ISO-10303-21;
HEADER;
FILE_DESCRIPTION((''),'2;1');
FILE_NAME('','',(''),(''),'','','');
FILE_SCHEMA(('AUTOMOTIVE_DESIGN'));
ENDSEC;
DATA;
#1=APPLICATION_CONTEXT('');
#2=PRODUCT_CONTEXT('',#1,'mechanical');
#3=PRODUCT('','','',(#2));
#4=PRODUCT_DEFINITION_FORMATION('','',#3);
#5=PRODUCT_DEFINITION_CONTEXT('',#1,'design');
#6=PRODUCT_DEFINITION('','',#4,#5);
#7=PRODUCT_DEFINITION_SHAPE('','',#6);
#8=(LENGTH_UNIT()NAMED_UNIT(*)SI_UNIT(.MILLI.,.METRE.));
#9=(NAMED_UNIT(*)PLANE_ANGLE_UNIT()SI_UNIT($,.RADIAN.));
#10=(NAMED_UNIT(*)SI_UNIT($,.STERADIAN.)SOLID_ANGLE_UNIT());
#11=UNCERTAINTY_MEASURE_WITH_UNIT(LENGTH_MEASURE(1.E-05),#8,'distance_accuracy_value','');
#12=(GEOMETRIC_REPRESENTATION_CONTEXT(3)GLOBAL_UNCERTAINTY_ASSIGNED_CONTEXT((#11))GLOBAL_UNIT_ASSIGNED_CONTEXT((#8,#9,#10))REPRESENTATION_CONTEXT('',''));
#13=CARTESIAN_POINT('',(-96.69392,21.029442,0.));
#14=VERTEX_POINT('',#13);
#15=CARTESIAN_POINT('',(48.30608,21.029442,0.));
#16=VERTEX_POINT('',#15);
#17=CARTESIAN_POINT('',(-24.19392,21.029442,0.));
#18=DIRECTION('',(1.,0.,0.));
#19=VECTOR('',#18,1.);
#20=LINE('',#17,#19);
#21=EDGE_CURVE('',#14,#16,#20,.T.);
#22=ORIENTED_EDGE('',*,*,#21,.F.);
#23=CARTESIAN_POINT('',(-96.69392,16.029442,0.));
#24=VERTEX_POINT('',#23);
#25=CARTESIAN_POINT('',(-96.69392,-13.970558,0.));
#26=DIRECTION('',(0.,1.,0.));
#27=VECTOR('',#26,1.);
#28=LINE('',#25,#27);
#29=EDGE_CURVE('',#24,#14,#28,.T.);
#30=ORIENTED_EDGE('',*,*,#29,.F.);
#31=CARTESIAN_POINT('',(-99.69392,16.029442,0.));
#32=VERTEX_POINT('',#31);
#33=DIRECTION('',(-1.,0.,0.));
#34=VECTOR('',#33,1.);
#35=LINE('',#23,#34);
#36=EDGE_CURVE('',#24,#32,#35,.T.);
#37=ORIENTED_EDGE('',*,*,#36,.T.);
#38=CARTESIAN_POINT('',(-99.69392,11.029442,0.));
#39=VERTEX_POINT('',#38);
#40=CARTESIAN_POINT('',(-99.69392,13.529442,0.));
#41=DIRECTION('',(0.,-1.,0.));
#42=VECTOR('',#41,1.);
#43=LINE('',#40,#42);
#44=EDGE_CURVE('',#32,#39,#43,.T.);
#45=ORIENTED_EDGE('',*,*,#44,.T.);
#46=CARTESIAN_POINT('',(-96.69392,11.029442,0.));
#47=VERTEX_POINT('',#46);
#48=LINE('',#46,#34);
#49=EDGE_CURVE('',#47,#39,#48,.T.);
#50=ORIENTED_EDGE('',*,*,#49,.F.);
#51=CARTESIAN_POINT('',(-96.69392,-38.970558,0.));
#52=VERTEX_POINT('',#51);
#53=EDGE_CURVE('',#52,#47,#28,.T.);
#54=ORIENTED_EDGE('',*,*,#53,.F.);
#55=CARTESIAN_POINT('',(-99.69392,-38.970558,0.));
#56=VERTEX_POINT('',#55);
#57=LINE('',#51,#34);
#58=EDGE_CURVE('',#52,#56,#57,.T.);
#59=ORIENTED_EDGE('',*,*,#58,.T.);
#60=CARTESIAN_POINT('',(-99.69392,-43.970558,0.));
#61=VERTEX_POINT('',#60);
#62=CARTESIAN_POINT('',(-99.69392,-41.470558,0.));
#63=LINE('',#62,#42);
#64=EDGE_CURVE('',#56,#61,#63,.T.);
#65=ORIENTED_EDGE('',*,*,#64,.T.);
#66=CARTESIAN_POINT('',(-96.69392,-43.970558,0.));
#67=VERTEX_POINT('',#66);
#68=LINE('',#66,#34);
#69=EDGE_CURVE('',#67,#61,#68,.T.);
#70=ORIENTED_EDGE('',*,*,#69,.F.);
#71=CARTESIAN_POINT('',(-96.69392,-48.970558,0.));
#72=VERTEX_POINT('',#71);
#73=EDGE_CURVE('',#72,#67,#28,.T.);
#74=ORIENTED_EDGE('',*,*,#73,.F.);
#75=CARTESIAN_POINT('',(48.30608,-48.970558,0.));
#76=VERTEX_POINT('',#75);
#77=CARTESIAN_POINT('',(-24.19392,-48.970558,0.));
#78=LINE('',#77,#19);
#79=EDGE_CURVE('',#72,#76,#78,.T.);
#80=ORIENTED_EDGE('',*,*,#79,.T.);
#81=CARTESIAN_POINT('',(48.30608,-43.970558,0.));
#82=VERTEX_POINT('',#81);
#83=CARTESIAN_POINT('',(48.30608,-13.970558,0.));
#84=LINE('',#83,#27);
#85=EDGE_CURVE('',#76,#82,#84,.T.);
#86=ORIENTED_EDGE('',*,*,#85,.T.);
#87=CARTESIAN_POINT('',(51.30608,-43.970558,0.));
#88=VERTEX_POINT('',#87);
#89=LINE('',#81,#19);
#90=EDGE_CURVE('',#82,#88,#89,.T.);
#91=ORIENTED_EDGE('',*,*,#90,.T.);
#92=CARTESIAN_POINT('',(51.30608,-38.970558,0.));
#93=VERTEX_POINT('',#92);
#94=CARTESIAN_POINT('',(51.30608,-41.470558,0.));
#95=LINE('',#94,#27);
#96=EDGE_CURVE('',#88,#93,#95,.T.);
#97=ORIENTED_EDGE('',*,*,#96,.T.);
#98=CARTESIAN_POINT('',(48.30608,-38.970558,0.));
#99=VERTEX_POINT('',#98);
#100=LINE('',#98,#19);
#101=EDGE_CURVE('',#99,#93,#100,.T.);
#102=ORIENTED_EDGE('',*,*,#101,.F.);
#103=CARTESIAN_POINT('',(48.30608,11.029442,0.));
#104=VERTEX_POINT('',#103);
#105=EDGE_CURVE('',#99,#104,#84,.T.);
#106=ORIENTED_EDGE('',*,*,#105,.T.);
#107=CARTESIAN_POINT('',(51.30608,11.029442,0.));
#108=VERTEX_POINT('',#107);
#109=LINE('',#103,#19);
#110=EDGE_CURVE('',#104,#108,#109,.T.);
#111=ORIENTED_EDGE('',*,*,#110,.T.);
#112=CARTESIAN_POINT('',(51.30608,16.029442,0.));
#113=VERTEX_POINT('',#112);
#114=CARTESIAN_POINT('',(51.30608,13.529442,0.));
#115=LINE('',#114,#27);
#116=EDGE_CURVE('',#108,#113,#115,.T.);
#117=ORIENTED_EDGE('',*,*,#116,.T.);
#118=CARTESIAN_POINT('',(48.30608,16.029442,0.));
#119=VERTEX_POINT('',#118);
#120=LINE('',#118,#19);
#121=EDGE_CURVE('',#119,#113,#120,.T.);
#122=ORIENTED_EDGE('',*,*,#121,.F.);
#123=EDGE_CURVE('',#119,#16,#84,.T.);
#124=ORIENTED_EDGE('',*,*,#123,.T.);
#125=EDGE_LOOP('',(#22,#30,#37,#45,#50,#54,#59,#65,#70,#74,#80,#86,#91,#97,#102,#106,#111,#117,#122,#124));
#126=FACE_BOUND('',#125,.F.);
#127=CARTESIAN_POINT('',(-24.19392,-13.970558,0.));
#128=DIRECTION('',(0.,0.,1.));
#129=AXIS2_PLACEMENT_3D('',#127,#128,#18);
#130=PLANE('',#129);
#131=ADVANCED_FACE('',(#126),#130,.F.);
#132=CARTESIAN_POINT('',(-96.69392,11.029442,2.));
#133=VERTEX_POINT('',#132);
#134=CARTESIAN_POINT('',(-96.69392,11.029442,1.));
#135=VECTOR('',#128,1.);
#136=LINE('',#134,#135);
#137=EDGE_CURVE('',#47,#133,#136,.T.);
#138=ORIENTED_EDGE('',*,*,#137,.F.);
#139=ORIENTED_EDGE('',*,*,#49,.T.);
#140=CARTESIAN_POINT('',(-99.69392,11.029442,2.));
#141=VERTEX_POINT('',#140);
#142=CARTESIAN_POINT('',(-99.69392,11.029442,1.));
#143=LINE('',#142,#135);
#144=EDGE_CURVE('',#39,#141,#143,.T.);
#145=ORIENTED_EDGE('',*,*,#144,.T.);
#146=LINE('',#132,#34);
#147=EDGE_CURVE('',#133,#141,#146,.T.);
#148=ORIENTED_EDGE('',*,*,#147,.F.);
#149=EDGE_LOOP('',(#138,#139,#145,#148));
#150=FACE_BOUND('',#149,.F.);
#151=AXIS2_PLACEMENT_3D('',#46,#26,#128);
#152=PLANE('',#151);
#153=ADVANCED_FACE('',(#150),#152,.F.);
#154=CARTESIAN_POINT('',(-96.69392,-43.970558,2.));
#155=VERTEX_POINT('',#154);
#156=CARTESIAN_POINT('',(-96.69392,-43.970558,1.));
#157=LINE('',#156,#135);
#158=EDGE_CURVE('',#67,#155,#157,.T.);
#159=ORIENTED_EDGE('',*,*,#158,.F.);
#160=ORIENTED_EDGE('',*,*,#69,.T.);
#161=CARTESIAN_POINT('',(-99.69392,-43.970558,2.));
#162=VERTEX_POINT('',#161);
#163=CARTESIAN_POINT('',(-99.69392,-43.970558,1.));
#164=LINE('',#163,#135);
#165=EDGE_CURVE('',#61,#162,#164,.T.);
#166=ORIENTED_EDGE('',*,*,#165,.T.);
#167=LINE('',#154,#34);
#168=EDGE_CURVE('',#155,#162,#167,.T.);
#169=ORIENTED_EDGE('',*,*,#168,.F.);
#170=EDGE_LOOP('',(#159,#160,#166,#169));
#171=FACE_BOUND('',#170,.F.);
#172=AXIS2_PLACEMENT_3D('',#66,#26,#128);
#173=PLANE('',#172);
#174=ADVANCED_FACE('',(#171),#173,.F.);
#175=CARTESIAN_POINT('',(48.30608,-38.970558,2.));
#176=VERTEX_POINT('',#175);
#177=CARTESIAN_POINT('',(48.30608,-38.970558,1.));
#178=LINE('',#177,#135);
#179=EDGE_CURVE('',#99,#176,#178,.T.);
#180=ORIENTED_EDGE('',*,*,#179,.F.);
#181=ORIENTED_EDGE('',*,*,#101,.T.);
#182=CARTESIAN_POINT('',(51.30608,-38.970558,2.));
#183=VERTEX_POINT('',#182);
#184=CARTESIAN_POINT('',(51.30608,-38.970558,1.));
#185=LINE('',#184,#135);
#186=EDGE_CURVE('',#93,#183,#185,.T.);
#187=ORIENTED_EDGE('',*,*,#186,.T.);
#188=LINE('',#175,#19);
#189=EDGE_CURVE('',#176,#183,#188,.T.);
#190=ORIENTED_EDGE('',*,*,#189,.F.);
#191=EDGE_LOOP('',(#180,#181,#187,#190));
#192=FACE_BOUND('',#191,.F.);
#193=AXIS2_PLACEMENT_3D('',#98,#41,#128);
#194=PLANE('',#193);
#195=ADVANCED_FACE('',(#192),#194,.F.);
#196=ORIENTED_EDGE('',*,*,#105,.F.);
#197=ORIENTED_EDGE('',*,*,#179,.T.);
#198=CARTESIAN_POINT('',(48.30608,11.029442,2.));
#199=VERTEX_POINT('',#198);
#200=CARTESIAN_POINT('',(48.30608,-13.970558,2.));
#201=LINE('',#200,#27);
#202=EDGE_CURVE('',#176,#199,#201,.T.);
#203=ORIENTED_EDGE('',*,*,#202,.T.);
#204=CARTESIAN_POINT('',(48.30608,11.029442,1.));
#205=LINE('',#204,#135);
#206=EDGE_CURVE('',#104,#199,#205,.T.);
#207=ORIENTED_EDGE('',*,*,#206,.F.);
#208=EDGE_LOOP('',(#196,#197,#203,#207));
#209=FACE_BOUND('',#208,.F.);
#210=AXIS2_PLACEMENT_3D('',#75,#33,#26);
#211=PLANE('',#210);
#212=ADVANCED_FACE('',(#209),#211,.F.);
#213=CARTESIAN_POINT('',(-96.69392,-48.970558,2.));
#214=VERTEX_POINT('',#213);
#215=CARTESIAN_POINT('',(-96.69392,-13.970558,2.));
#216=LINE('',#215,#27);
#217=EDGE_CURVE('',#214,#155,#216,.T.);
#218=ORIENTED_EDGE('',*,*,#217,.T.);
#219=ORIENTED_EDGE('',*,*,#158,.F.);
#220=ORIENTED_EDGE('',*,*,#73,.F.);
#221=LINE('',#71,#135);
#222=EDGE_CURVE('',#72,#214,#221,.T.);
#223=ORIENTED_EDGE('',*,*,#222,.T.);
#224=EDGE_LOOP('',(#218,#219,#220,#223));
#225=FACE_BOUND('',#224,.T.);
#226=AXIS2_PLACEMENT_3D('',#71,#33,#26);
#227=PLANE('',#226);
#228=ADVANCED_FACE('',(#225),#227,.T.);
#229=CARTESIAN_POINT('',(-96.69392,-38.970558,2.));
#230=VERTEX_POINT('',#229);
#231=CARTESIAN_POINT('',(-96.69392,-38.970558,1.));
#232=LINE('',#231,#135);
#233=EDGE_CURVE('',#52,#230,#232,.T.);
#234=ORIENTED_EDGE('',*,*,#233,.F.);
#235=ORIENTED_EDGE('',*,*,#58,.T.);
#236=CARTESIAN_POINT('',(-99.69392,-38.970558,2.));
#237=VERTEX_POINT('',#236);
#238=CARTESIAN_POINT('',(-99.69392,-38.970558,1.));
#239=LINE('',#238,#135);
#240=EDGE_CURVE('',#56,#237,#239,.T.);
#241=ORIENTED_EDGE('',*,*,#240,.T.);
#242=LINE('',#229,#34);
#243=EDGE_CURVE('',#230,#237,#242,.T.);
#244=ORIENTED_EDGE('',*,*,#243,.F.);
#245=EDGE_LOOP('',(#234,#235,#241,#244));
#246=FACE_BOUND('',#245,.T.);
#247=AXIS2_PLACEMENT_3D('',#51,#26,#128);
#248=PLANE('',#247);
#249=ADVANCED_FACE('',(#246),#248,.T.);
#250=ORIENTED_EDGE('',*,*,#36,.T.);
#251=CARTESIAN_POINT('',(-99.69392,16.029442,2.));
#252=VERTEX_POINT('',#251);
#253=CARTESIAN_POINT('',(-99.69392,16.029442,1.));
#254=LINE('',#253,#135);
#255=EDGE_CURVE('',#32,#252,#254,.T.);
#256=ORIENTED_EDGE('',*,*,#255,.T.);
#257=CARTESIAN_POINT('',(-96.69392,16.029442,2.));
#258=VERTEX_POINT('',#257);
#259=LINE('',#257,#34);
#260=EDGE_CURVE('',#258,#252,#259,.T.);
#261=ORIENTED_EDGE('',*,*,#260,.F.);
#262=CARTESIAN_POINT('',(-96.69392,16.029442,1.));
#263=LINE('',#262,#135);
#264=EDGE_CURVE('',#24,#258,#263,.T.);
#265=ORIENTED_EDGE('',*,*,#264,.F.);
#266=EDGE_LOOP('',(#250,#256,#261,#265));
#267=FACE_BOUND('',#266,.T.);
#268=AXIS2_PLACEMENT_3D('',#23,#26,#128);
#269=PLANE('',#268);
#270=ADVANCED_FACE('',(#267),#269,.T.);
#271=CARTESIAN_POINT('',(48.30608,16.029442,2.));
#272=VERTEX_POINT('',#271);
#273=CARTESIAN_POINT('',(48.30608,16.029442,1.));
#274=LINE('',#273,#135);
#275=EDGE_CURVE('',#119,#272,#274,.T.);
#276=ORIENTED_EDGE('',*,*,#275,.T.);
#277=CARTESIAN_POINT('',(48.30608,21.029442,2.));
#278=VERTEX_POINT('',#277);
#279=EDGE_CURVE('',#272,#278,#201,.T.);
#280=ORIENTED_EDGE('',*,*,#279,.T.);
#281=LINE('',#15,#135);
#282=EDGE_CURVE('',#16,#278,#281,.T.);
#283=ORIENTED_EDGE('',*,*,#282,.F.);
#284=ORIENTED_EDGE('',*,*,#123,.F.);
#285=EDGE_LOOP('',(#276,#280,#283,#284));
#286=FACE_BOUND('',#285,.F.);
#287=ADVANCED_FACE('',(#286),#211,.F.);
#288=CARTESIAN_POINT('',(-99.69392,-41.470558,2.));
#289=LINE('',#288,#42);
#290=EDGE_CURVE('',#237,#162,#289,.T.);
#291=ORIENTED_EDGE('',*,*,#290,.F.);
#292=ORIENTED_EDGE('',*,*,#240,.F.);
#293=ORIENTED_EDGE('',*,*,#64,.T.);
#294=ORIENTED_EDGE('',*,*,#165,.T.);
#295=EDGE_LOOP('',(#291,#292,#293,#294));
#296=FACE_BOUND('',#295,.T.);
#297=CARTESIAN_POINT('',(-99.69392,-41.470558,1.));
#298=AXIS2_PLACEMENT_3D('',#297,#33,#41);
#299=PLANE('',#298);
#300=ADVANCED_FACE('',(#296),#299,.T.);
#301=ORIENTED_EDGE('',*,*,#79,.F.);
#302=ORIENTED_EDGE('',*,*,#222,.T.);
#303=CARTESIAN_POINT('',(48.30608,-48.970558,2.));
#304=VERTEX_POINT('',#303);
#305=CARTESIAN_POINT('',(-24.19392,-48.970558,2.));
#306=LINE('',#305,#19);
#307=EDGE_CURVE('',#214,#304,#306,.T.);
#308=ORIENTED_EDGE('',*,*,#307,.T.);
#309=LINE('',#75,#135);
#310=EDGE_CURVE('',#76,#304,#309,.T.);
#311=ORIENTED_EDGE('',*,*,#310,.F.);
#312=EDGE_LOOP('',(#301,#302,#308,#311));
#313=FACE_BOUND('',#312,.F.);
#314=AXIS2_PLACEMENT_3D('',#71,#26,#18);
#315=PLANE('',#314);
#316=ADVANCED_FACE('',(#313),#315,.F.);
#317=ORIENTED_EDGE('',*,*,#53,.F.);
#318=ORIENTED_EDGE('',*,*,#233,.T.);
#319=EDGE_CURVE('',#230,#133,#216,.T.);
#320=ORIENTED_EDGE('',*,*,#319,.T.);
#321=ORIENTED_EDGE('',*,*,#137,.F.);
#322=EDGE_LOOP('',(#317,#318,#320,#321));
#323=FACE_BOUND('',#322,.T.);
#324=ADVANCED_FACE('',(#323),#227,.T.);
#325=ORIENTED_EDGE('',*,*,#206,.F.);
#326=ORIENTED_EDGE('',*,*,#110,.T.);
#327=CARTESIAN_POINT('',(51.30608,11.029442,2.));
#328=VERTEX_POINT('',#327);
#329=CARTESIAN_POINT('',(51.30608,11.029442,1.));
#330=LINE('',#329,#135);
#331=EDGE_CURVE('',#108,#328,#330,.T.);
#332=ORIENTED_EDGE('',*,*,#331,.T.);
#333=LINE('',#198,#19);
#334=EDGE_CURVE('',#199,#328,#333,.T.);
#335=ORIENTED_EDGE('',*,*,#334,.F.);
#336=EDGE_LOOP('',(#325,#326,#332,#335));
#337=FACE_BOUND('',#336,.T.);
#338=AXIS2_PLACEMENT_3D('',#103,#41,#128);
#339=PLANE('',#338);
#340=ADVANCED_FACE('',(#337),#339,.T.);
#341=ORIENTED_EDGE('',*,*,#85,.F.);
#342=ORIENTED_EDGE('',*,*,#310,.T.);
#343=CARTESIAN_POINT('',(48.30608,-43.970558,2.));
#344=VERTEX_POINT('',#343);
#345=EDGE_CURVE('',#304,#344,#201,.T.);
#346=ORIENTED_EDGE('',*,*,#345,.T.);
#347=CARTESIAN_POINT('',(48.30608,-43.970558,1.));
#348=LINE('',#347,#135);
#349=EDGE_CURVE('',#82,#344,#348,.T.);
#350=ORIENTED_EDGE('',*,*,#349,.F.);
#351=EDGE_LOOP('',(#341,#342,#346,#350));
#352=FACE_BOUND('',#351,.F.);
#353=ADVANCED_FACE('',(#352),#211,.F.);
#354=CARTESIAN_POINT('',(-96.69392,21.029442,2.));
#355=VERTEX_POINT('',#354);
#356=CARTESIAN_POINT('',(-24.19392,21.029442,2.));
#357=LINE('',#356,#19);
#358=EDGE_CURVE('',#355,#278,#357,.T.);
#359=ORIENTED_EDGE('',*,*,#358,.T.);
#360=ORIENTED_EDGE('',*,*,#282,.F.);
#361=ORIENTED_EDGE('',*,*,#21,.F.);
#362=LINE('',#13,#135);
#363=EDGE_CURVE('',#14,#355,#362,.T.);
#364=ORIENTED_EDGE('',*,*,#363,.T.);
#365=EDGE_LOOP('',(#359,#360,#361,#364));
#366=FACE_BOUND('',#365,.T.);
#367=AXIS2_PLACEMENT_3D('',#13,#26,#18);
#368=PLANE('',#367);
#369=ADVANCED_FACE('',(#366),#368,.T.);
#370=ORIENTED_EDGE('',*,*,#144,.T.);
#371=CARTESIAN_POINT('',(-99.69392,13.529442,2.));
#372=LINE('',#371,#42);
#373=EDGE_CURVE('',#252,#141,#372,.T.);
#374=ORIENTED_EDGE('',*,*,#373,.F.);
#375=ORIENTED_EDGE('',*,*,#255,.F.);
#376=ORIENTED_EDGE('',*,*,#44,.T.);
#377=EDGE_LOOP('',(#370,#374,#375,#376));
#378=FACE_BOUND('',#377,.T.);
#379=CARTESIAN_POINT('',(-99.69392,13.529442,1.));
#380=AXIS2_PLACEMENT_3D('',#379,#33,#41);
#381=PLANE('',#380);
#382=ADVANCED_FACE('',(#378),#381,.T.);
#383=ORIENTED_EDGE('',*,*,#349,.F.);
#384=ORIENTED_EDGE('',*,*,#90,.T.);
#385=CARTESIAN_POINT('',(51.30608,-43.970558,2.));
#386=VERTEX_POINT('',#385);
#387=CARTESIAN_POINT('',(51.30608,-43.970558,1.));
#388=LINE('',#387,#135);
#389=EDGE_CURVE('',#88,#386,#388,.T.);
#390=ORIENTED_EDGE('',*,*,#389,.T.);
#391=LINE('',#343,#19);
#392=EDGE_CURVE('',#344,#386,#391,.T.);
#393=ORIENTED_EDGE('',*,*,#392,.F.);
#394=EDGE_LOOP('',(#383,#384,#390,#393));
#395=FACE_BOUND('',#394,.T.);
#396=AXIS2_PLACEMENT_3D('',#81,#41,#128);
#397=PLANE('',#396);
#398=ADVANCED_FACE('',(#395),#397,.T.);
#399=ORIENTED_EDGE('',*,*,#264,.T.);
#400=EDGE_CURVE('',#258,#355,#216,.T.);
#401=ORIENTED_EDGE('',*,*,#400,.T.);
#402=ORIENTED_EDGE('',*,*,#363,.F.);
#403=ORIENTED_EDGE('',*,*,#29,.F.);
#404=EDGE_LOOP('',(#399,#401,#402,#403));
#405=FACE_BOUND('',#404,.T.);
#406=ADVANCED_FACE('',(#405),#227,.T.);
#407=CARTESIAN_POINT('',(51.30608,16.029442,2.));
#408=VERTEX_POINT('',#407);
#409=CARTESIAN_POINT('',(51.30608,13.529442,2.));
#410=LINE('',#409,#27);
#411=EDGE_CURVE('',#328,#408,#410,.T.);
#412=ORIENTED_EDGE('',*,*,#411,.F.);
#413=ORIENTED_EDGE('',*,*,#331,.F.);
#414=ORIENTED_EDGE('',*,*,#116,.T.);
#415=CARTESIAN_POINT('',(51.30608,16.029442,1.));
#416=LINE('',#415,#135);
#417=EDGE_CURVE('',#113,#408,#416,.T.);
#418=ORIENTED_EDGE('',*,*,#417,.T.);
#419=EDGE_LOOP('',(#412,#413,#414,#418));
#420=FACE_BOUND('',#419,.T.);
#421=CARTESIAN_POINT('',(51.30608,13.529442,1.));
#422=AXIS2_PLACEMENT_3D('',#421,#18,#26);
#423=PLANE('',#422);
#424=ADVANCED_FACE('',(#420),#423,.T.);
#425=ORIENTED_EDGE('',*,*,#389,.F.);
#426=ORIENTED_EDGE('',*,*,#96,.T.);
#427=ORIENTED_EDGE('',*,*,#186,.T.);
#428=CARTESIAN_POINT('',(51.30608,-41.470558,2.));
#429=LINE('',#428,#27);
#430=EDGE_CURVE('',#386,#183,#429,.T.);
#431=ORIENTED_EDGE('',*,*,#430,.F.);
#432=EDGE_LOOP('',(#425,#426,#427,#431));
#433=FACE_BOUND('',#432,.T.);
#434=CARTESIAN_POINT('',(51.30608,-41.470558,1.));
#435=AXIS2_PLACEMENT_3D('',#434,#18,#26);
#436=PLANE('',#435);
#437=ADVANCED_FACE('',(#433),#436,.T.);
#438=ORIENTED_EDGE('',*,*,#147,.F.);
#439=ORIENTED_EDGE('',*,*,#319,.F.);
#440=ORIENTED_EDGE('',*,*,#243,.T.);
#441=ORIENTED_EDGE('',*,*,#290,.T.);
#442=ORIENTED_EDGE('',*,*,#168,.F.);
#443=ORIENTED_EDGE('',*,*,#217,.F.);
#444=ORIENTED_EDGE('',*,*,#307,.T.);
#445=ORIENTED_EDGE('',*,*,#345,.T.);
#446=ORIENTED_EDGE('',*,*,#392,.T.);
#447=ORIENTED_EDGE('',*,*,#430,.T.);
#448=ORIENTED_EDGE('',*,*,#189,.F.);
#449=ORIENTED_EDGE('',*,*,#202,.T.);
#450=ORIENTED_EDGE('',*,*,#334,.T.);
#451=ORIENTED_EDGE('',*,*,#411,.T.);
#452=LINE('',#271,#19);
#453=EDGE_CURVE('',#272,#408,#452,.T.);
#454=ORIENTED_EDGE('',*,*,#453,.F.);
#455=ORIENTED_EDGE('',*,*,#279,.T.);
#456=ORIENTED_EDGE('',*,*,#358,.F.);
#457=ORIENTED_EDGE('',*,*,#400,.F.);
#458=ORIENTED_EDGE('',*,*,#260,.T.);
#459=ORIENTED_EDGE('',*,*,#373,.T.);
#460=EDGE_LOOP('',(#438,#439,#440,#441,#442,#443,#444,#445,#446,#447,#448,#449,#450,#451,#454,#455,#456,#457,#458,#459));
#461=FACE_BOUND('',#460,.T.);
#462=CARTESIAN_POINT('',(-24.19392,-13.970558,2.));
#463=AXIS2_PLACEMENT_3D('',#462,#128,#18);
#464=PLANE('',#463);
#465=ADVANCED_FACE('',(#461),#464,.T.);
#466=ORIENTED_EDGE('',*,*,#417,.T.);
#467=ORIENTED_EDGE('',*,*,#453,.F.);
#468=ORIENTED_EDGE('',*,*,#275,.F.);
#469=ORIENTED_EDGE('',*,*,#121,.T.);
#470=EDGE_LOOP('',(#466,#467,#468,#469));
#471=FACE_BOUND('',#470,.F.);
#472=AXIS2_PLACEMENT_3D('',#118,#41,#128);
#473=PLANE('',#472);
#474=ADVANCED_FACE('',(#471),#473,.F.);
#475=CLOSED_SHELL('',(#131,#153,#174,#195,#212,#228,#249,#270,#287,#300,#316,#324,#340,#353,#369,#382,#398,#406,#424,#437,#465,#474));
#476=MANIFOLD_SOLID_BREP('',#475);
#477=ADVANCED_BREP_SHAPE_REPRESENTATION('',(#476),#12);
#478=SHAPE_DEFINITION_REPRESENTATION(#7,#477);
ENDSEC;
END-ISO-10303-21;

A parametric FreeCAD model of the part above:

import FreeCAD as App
import Part
import Sketcher
Q = App.Units.Quantity


def add_polygon(sketch, points):
    """Adds a closed chain of lines whose ends are joined by coincident constraints."""
    first, n = sketch.GeometryCount, len(points)
    for a, b in zip(points, points[1:] + points[:1]):
        sketch.addGeometry(Part.LineSegment(App.Vector(*a, 0), App.Vector(*b, 0)), False)
    for i in range(n):
        sketch.addConstraint(Sketcher.Constraint("Coincident", first + i, 2, first + (i + 1) % n, 1))

doc = App.newDocument("Part")
body = doc.addObject("PartDesign::Body", "Body")

sketch1 = doc.addObject("Sketcher::SketchObject", "Sketch")
body.addObject(sketch1)
sketch1.AttachmentSupport = (doc.XY_Plane, [""])
sketch1.MapMode = "FlatFace"
add_polygon(sketch1, [(-97, 21), (-97, -49), (48, -49), (48, 21)])
sketch1.addConstraint([
    Sketcher.Constraint("Vertical", 0),
    Sketcher.Constraint("Horizontal", 1),
    Sketcher.Constraint("Vertical", 2),
    Sketcher.Constraint("Horizontal", 3),
    Sketcher.Constraint("DistanceX", 1, 1, 1, 2, Q("145 mm")),
    Sketcher.Constraint("DistanceY", 0, 2, 0, 1, Q("70 mm")),
    Sketcher.Constraint("DistanceX", 0, 2, -1, 1, Q("96.69392 mm")),
    Sketcher.Constraint("DistanceY", -1, 1, 2, 2, Q("21.029442 mm")),
])
pad1 = doc.addObject("PartDesign::Pad", "Pad")
body.addObject(pad1)
pad1.Profile = sketch1
pad1.Length = 2

sketch2 = doc.addObject("Sketcher::SketchObject", "Sketch001")
body.addObject(sketch2)
sketch2.AttachmentSupport = (doc.YZ_Plane, [""])
sketch2.MapMode = "FlatFace"
sketch2.AttachmentOffset = App.Placement(App.Vector(0, 0, -96.69392), App.Rotation())
add_polygon(sketch2, [(16, 2), (16, 0), (11, 0), (11, 2)])
add_polygon(sketch2, [(-39, 2), (-39, 0), (-44, 0), (-44, 2)])
sketch2.addConstraint([
    Sketcher.Constraint("Vertical", 0),
    Sketcher.Constraint("Horizontal", 1),
    Sketcher.Constraint("Vertical", 2),
    Sketcher.Constraint("Horizontal", 3),
    Sketcher.Constraint("Vertical", 4),
    Sketcher.Constraint("Horizontal", 5),
    Sketcher.Constraint("Vertical", 6),
    Sketcher.Constraint("Horizontal", 7),
    Sketcher.Constraint("PointOnObject", 0, 2, -1),
    Sketcher.Constraint("PointOnObject", 4, 2, -1),
    Sketcher.Constraint("Horizontal", 3, 2, 6, 2),
    Sketcher.Constraint("Equal", 3, 5),
    Sketcher.Constraint("DistanceX", 1, 2, 1, 1, Q("5 mm")),
    Sketcher.Constraint("DistanceY", 0, 2, 0, 1, Q("2 mm")),
    Sketcher.Constraint("DistanceX", 4, 2, 1, 2, Q("50 mm")),
    Sketcher.Constraint("DistanceX", -1, 1, 0, 2, Q("16.029442 mm")),
])
pad2 = doc.addObject("PartDesign::Pad", "Pad001")
body.addObject(pad2)
pad2.Profile = sketch2
pad2.Length = 3
pad2.Reversed = True

sketch3 = doc.addObject("Sketcher::SketchObject", "Sketch002")
body.addObject(sketch3)
sketch3.AttachmentSupport = (doc.YZ_Plane, [""])
sketch3.MapMode = "FlatFace"
sketch3.AttachmentOffset = App.Placement(App.Vector(0, 0, 48.30608), App.Rotation())
add_polygon(sketch3, [(11, 2), (11, 0), (16, 0), (16, 2)])
add_polygon(sketch3, [(-44, 2), (-44, 0), (-39, 0), (-39, 2)])
sketch3.addConstraint([
    Sketcher.Constraint("Vertical", 0),
    Sketcher.Constraint("Horizontal", 1),
    Sketcher.Constraint("Vertical", 2),
    Sketcher.Constraint("Horizontal", 3),
    Sketcher.Constraint("Vertical", 4),
    Sketcher.Constraint("Horizontal", 5),
    Sketcher.Constraint("Vertical", 6),
    Sketcher.Constraint("Horizontal", 7),
    Sketcher.Constraint("PointOnObject", 0, 2, -1),
    Sketcher.Constraint("PointOnObject", 4, 2, -1),
    Sketcher.Constraint("Horizontal", 3, 2, 6, 2),
    Sketcher.Constraint("Equal", 3, 5),
    Sketcher.Constraint("DistanceX", 1, 1, 1, 2, Q("5 mm")),
    Sketcher.Constraint("DistanceY", 0, 2, 0, 1, Q("2 mm")),
    Sketcher.Constraint("DistanceX", 4, 2, 0, 2, Q("55 mm")),
    Sketcher.Constraint("DistanceX", -1, 1, 1, 2, Q("16.029442 mm")),
])
pad3 = doc.addObject("PartDesign::Pad", "Pad002")
body.addObject(pad3)
pad3.Profile = sketch3
pad3.Length = 3

doc.recompute()
